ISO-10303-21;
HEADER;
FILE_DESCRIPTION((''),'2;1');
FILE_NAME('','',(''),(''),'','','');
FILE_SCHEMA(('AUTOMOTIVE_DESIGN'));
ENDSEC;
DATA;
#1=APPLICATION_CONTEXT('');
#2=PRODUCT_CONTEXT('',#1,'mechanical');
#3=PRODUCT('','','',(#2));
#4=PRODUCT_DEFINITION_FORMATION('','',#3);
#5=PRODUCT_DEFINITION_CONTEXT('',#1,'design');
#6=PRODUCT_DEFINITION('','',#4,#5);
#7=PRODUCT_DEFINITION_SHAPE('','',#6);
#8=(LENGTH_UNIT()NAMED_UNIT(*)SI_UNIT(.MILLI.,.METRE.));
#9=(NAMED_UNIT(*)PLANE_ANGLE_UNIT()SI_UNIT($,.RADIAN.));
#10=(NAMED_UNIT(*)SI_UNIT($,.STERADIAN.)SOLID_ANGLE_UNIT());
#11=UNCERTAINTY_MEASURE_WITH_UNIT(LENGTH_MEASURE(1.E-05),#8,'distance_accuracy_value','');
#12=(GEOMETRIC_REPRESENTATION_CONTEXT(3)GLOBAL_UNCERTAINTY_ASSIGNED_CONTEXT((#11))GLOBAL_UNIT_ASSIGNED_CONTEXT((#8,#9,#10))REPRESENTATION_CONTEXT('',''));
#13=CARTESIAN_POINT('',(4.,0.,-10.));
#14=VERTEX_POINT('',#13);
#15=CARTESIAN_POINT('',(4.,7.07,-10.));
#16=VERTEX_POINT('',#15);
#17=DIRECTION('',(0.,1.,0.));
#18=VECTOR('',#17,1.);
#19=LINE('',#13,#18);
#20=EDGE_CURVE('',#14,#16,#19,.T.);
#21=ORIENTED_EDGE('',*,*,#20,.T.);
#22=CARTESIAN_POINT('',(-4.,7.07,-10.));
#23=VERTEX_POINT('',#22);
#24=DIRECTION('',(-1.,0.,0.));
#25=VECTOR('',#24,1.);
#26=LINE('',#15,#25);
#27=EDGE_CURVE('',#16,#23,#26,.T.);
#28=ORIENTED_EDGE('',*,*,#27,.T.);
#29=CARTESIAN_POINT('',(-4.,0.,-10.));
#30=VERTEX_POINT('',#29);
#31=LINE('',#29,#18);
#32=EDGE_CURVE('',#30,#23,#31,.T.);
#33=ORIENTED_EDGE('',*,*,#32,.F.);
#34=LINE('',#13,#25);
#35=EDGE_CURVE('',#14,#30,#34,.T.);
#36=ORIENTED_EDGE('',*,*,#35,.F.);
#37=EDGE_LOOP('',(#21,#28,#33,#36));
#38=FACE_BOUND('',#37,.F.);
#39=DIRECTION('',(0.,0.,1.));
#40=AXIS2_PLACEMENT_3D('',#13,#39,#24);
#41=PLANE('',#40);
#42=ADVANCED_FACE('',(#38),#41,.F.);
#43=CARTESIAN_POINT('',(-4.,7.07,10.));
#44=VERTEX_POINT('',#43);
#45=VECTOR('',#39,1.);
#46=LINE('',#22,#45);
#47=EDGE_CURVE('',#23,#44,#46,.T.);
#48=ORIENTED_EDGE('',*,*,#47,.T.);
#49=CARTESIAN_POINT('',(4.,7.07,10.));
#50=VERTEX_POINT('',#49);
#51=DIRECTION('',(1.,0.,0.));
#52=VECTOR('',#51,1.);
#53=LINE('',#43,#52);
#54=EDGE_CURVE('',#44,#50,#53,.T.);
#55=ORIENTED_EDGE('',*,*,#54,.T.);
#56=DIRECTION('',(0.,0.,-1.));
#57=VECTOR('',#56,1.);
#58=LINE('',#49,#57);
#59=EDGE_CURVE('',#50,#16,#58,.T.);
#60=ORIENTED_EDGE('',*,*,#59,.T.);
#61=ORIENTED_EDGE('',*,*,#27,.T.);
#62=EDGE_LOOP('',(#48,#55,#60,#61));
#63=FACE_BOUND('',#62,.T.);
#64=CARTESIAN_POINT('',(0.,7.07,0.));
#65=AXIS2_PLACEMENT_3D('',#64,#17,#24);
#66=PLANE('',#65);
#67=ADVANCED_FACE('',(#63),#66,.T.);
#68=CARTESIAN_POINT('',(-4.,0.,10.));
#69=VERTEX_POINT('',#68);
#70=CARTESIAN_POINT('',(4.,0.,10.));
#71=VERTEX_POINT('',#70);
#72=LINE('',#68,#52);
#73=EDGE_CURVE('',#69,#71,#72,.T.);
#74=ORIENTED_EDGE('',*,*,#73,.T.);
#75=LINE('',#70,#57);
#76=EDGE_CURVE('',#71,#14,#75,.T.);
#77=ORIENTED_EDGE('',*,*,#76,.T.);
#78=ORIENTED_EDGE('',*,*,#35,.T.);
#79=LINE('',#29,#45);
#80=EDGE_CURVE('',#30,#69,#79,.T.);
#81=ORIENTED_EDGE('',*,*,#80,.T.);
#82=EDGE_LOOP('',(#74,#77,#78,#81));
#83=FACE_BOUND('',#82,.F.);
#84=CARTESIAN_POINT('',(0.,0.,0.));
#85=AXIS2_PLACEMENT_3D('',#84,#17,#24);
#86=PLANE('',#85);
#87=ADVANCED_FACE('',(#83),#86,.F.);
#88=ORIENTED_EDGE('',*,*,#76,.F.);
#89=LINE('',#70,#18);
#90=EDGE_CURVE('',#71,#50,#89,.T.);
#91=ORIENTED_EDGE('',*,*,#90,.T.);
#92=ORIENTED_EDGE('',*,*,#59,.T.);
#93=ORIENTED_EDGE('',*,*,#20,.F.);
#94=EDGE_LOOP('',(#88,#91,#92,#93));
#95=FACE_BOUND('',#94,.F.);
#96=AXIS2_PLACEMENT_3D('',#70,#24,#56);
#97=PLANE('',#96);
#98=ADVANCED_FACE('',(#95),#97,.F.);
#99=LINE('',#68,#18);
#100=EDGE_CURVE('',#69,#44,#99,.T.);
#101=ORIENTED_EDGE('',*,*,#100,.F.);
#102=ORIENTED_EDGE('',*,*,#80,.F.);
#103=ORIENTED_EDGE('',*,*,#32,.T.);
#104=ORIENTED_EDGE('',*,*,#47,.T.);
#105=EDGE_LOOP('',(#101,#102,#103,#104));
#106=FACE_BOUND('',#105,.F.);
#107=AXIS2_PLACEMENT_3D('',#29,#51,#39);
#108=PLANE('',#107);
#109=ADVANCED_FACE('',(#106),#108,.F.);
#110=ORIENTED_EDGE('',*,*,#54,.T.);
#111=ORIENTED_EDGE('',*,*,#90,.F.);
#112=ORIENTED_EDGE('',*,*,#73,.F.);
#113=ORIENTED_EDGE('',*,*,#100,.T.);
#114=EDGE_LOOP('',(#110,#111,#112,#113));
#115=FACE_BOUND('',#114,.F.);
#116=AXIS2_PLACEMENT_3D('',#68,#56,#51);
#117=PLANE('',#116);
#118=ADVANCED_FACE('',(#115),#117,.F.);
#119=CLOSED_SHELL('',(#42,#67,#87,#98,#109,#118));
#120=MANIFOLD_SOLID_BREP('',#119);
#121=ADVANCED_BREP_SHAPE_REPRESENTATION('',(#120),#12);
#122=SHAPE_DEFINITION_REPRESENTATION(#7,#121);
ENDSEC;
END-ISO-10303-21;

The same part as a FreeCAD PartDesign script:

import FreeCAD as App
import Part
import Sketcher
from FreeCAD import Vector

doc = App.newDocument("Part")
body = doc.addObject("PartDesign::Body", "Body")

# Sketch on XZ plane
sketch1 = body.newObject("Sketcher::SketchObject", "Sketch")
sketch1.AttachmentSupport = (doc.getObject("XZ_Plane"), [""])
sketch1.MapMode = "FlatFace"
sketch1.addGeometry(Part.LineSegment(Vector(-4, -10, 0), Vector(-4, 10, 0)), False)
sketch1.addGeometry(Part.LineSegment(Vector(-4, 10, 0), Vector(4, 10, 0)), False)
sketch1.addGeometry(Part.LineSegment(Vector(4, 10, 0), Vector(4, -10, 0)), False)
sketch1.addGeometry(Part.LineSegment(Vector(4, -10, 0), Vector(-4, -10, 0)), False)
sketch1.addConstraint(Sketcher.Constraint("Coincident", 0, 2, 1, 1))
sketch1.addConstraint(Sketcher.Constraint("Coincident", 1, 2, 2, 1))
sketch1.addConstraint(Sketcher.Constraint("Coincident", 2, 2, 3, 1))
sketch1.addConstraint(Sketcher.Constraint("Coincident", 3, 2, 0, 1))
sketch1.addConstraint(Sketcher.Constraint("Vertical", 0))
sketch1.addConstraint(Sketcher.Constraint("Horizontal", 1))
sketch1.addConstraint(Sketcher.Constraint("Vertical", 2))
sketch1.addConstraint(Sketcher.Constraint("Horizontal", 3))
sketch1.addConstraint(Sketcher.Constraint("Symmetric", 0, 2, 2, 2, -1, 1))
sketch1.addConstraint(Sketcher.Constraint("DistanceX", 1, 1, 1, 2, 8.0))
sketch1.addConstraint(Sketcher.Constraint("DistanceY", 0, 1, 0, 2, 20.0))
pad1 = body.newObject("PartDesign::Pad", "Pad")
pad1.Profile = sketch1
pad1.Length = 7.07
pad1.Reversed = True

doc.recompute()
